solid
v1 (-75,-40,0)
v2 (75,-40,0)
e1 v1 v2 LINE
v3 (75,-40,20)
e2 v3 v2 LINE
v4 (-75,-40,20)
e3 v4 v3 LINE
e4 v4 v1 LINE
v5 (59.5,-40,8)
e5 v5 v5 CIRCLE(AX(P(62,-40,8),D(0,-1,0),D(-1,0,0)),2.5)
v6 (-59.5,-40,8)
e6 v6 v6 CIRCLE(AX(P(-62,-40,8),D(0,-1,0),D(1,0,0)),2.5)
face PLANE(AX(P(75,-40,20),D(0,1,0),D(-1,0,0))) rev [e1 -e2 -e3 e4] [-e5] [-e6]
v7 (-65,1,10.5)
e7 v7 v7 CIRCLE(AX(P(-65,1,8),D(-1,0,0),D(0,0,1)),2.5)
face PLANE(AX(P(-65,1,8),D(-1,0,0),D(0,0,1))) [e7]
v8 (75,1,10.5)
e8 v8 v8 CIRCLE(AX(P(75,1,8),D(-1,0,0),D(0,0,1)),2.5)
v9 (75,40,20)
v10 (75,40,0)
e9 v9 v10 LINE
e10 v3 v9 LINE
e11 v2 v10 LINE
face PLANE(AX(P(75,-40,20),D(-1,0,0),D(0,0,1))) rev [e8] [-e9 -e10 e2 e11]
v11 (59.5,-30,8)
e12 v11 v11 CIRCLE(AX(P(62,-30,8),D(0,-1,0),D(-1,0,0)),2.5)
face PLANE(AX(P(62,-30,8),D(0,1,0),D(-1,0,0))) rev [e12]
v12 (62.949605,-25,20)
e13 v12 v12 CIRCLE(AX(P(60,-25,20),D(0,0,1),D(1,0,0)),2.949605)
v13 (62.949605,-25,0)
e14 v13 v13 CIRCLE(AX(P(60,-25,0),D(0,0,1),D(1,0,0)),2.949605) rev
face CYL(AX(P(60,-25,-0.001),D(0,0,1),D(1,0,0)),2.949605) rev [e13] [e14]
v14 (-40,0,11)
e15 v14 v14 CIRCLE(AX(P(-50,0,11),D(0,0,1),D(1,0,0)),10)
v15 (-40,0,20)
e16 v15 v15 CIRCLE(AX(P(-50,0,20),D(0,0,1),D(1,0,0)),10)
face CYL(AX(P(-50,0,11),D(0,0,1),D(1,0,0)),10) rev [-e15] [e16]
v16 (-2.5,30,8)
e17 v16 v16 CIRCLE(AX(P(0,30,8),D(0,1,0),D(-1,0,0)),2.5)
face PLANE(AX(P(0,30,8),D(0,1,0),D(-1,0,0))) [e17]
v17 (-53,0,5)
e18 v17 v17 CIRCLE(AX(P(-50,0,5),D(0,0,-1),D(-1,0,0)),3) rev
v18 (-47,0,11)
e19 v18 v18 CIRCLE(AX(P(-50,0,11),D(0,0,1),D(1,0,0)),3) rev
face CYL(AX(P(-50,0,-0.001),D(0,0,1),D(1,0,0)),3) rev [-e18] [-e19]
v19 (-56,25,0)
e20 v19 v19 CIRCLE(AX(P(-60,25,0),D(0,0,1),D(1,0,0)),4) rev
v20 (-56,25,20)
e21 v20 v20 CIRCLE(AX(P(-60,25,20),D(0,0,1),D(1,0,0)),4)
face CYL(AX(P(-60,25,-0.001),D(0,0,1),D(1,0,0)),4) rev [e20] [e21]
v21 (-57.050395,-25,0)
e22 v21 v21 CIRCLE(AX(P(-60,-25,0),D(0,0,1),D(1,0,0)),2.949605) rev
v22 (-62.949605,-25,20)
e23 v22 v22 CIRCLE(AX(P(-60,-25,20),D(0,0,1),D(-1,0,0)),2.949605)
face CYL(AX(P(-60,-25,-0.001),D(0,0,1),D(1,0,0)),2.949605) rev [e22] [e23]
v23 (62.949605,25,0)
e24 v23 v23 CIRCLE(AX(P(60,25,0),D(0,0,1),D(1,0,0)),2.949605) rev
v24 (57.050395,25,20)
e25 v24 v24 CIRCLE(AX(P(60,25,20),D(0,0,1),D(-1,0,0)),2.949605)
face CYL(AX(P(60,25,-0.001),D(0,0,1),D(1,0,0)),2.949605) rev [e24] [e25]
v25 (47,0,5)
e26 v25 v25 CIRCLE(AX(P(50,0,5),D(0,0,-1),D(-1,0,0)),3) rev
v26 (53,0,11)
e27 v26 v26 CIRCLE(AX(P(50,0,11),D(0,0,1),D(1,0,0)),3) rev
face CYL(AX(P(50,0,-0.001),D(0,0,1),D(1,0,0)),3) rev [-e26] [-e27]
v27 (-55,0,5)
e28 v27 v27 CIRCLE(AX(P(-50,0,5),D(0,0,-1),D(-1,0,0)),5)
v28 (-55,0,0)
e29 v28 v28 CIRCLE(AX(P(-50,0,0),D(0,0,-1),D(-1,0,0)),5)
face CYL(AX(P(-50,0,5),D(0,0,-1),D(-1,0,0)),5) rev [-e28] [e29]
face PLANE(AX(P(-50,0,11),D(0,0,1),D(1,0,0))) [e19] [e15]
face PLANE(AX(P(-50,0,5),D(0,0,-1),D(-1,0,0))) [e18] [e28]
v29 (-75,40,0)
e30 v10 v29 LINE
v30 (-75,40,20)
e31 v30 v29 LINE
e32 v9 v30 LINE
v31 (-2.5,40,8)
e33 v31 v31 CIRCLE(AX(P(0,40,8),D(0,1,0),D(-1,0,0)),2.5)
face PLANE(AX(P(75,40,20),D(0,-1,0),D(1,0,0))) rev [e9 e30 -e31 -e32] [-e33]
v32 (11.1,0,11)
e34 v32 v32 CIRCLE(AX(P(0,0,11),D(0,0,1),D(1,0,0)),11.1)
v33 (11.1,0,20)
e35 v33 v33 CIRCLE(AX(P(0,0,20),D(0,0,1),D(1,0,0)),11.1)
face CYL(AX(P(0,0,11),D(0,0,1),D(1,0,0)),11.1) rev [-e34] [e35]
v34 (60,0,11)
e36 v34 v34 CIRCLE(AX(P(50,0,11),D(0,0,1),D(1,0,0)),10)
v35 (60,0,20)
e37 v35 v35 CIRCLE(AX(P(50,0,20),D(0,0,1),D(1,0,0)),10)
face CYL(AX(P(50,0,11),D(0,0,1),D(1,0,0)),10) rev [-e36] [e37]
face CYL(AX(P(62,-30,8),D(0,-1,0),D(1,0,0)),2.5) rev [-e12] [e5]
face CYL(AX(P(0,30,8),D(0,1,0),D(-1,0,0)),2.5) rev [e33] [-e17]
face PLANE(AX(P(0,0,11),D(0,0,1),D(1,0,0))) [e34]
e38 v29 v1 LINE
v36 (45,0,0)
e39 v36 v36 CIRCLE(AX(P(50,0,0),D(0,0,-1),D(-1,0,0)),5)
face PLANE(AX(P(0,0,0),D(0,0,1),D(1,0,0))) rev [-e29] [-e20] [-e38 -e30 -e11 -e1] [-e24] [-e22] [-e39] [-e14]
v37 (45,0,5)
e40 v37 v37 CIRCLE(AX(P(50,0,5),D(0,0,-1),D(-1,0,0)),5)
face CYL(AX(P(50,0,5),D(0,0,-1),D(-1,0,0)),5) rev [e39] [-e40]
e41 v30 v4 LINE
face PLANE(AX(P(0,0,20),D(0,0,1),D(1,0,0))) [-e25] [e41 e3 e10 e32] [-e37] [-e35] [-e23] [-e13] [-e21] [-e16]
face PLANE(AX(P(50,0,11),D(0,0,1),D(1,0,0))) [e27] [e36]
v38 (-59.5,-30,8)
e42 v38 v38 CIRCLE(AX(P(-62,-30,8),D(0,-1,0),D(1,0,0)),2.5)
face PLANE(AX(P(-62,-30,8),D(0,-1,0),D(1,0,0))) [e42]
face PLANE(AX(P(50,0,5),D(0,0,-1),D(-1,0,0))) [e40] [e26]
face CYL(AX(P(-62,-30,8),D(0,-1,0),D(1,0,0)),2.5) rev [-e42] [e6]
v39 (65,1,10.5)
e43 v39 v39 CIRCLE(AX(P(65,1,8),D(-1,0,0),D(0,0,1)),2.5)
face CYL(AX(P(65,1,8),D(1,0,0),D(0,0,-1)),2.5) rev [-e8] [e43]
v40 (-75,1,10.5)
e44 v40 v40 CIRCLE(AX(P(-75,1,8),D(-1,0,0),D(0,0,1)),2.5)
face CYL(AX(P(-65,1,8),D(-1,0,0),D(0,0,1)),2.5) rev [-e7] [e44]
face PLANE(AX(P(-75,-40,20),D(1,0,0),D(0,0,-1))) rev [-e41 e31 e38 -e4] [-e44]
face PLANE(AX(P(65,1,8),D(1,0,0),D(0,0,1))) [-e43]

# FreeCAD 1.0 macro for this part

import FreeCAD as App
import Part
import Sketcher

V = App.Vector
Q = App.Units.Quantity


def add_polygon(sketch, points):
    """Adds a closed chain of lines whose ends are joined by coincident constraints."""
    first, n = sketch.GeometryCount, len(points)
    for a, b in zip(points, points[1:] + points[:1]):
        sketch.addGeometry(Part.LineSegment(App.Vector(*a, 0), App.Vector(*b, 0)), False)
    for i in range(n):
        sketch.addConstraint(Sketcher.Constraint("Coincident", first + i, 2, first + (i + 1) % n, 1))

doc = App.newDocument("Part")
body = doc.addObject("PartDesign::Body", "Body")

# Sketch on XY plane
sketch1 = body.newObject("Sketcher::SketchObject", "Sketch")
sketch1.AttachmentSupport = (doc.getObject("XY_Plane"), [""])
sketch1.MapMode = "FlatFace"
add_polygon(sketch1, [(-75, 40), (-75, -40), (75, -40), (75, 40)])  # lines 0-3
sketch1.addConstraint([
    Sketcher.Constraint("Vertical", 0),
    Sketcher.Constraint("Horizontal", 1),
    Sketcher.Constraint("Vertical", 2),
    Sketcher.Constraint("Horizontal", 3),
    Sketcher.Constraint("Symmetric", 0, 2, 2, 2, -1, 1),
    Sketcher.Constraint("DistanceX", 1, 1, 1, 2, Q("150 mm")),
    Sketcher.Constraint("DistanceY", 0, 2, 0, 1, Q("80 mm")),
])
pad1 = body.newObject("PartDesign::Pad", "Pad")
pad1.Profile = sketch1
pad1.Length = 20

# Sketch on XY plane
sketch2 = body.newObject("Sketcher::SketchObject", "Sketch001")
sketch2.AttachmentSupport = (doc.getObject("XY_Plane"), [""])
sketch2.MapMode = "FlatFace"
sketch2.AttachmentOffset = App.Placement(V(0, 0, 20), App.Rotation())
sketch2.addGeometry(Part.Circle(V(-50, 0, 0), V(0, 0, 1), 3), False)
sketch2.addConstraint([
    Sketcher.Constraint("PointOnObject", 0, 3, -1),
    Sketcher.Constraint("Diameter", 0, Q("6 mm")),
    Sketcher.Constraint("DistanceX", 0, 3, -1, 1, Q("50 mm")),
])
pocket1 = body.newObject("PartDesign::Pocket", "Pocket")
pocket1.Profile = sketch2
pocket1.Type = "UpToFirst"

# Sketch on XY plane
sketch3 = body.newObject("Sketcher::SketchObject", "Sketch002")
sketch3.AttachmentSupport = (doc.getObject("XY_Plane"), [""])
sketch3.MapMode = "FlatFace"
sketch3.AttachmentOffset = App.Placement(V(0, 0, 20), App.Rotation())
sketch3.addGeometry(Part.Circle(V(50, 0, 0), V(0, 0, 1), 3), False)
sketch3.addConstraint([
    Sketcher.Constraint("PointOnObject", 0, 3, -1),
    Sketcher.Constraint("Diameter", 0, Q("6 mm")),
    Sketcher.Constraint("DistanceX", -1, 1, 0, 3, Q("50 mm")),
])
pocket2 = body.newObject("PartDesign::Pocket", "Pocket001")
pocket2.Profile = sketch3
pocket2.Type = "UpToFirst"

# Sketch on XY plane
sketch4 = body.newObject("Sketcher::SketchObject", "Sketch003")
sketch4.AttachmentSupport = (doc.getObject("XY_Plane"), [""])
sketch4.MapMode = "FlatFace"
sketch4.AttachmentOffset = App.Placement(V(0, 0, 20), App.Rotation())
sketch4.addGeometry([
    Part.Circle(V(0, 0, 0), V(0, 0, 1), 11.1),
    Part.Circle(V(-50, 0, 0), V(0, 0, 1), 10),
    Part.Circle(V(50, 0, 0), V(0, 0, 1), 10),
], False)
sketch4.addConstraint([
    Sketcher.Constraint("Coincident", 0, 3, -1, 1),
    Sketcher.Constraint("Equal", 1, 2),
    Sketcher.Constraint("Symmetric", 1, 3, 2, 3, -1, 1),
    Sketcher.Constraint("PointOnObject", 1, 3, -1),
    Sketcher.Constraint("Diameter", 1, Q("20 mm")),
    Sketcher.Constraint("Diameter", 0, Q("22.2 mm")),
    Sketcher.Constraint("DistanceX", 1, 3, -1, 1, Q("50 mm")),
])
pocket3 = body.newObject("PartDesign::Pocket", "Pocket002")
pocket3.Profile = sketch4
pocket3.Length = 9

# Sketch on XY plane
sketch5 = body.newObject("Sketcher::SketchObject", "Sketch004")
sketch5.AttachmentSupport = (doc.getObject("XY_Plane"), [""])
sketch5.MapMode = "FlatFace"
sketch5.AttachmentOffset = App.Placement(V(0, 0, 20), App.Rotation())
sketch5.addGeometry(Part.Circle(V(-60, 25, 0), V(0, 0, 1), 4), False)
sketch5.addConstraint([
    Sketcher.Constraint("Diameter", 0, Q("8 mm")),
    Sketcher.Constraint("DistanceX", 0, 3, -1, 1, Q("60 mm")),
    Sketcher.Constraint("DistanceY", -1, 1, 0, 3, Q("25 mm")),
])
pocket4 = body.newObject("PartDesign::Pocket", "Pocket003")
pocket4.Profile = sketch5
pocket4.Type = "UpToFirst"

# Sketch on XY plane
sketch6 = body.newObject("Sketcher::SketchObject", "Sketch005")
sketch6.AttachmentSupport = (doc.getObject("XY_Plane"), [""])
sketch6.MapMode = "FlatFace"
sketch6.AttachmentOffset = App.Placement(V(0, 0, 20), App.Rotation())
sketch6.addGeometry(Part.Circle(V(60, 25, 0), V(0, 0, 1), 2.949605), False)
sketch6.addConstraint([
    Sketcher.Constraint("DistanceX", -1, 1, 0, 3, Q("60 mm")),
    Sketcher.Constraint("DistanceY", -1, 1, 0, 3, Q("25 mm")),
    Sketcher.Constraint("Diameter", 0, Q("5.89921 mm")),
])
pocket5 = body.newObject("PartDesign::Pocket", "Pocket004")
pocket5.Profile = sketch6
pocket5.Type = "UpToFirst"

# Sketch on XY plane
sketch7 = body.newObject("Sketcher::SketchObject", "Sketch006")
sketch7.AttachmentSupport = (doc.getObject("XY_Plane"), [""])
sketch7.MapMode = "FlatFace"
sketch7.AttachmentOffset = App.Placement(V(0, 0, 20), App.Rotation())
sketch7.addGeometry(Part.Circle(V(60, -25, 0), V(0, 0, 1), 2.949605), False)
sketch7.addConstraint([
    Sketcher.Constraint("DistanceX", -1, 1, 0, 3, Q("60 mm")),
    Sketcher.Constraint("DistanceY", 0, 3, -1, 1, Q("25 mm")),
    Sketcher.Constraint("Diameter", 0, Q("5.89921 mm")),
])
pocket6 = body.newObject("PartDesign::Pocket", "Pocket005")
pocket6.Profile = sketch7
pocket6.Type = "UpToFirst"

# Sketch on XY plane
sketch8 = body.newObject("Sketcher::SketchObject", "Sketch007")
sketch8.AttachmentSupport = (doc.getObject("XY_Plane"), [""])
sketch8.MapMode = "FlatFace"
sketch8.AttachmentOffset = App.Placement(V(0, 0, 20), App.Rotation())
sketch8.addGeometry(Part.Circle(V(-60, -25, 0), V(0, 0, 1), 2.949605), False)
sketch8.addConstraint([
    Sketcher.Constraint("DistanceX", 0, 3, -1, 1, Q("60 mm")),
    Sketcher.Constraint("DistanceY", 0, 3, -1, 1, Q("25 mm")),
    Sketcher.Constraint("Diameter", 0, Q("5.89921 mm")),
])
pocket7 = body.newObject("PartDesign::Pocket", "Pocket006")
pocket7.Profile = sketch8
pocket7.Type = "UpToFirst"

# Sketch on XY plane
sketch9 = body.newObject("Sketcher::SketchObject", "Sketch008")
sketch9.AttachmentSupport = (doc.getObject("XY_Plane"), [""])
sketch9.MapMode = "FlatFace"
sketch9.addGeometry([
    Part.Circle(V(50, 0, 0), V(0, 0, 1), 5),
    Part.Circle(V(-50, 0, 0), V(0, 0, 1), 5),
], False)
sketch9.addConstraint([
    Sketcher.Constraint("Equal", 0, 1),
    Sketcher.Constraint("Symmetric", 0, 3, 1, 3, -1, 1),
    Sketcher.Constraint("PointOnObject", 0, 3, -1),
    Sketcher.Constraint("Diameter", 0, Q("10 mm")),
    Sketcher.Constraint("DistanceX", -1, 1, 0, 3, Q("50 mm")),
])
pocket8 = body.newObject("PartDesign::Pocket", "Pocket007")
pocket8.Profile = sketch9
pocket8.Length = 5
pocket8.Reversed = True

# Sketch on YZ plane
sketch10 = body.newObject("Sketcher::SketchObject", "Sketch009")
sketch10.AttachmentSupport = (doc.getObject("YZ_Plane"), [""])
sketch10.MapMode = "FlatFace"
sketch10.AttachmentOffset = App.Placement(V(0, 0, -75), App.Rotation())
sketch10.addGeometry(Part.Circle(V(1, 8, 0), V(0, 0, 1), 2.5), False)
sketch10.addConstraint([
    Sketcher.Constraint("Diameter", 0, Q("5 mm")),
    Sketcher.Constraint("DistanceX", -1, 1, 0, 3, Q("1 mm")),
    Sketcher.Constraint("DistanceY", -1, 1, 0, 3, Q("8 mm")),
])
pocket9 = body.newObject("PartDesign::Pocket", "Pocket008")
pocket9.Profile = sketch10
pocket9.Length = 10
pocket9.Reversed = True
doc.recompute()

mirrored = body.newObject("PartDesign::Mirrored", "Mirrored")
mirrored.Originals = [pocket9]
mirrored.MirrorPlane = (doc.getObject("YZ_Plane"), [""])
body.Tip = mirrored

# Sketch on XZ plane
sketch11 = body.newObject("Sketcher::SketchObject", "Sketch010")
sketch11.AttachmentSupport = (doc.getObject("XZ_Plane"), [""])
sketch11.MapMode = "FlatFace"
sketch11.AttachmentOffset = App.Placement(V(0, 0, 40), App.Rotation())
sketch11.addGeometry([
    Part.Circle(V(-62, 8, 0), V(0, 0, 1), 2.5),
    Part.Circle(V(62, 8, 0), V(0, 0, 1), 2.5),
], False)
sketch11.addConstraint([
    Sketcher.Constraint("Equal", 0, 1),
    Sketcher.Constraint("Symmetric", 0, 3, 1, 3, -2),
    Sketcher.Constraint("Diameter", 0, Q("5 mm")),
    Sketcher.Constraint("DistanceX", 0, 3, -1, 1, Q("62 mm")),
    Sketcher.Constraint("DistanceY", -1, 1, 0, 3, Q("8 mm")),
])
pocket10 = body.newObject("PartDesign::Pocket", "Pocket009")
pocket10.Profile = sketch11
pocket10.Length = 10

# Sketch on XZ plane
sketch12 = body.newObject("Sketcher::SketchObject", "Sketch011")
sketch12.AttachmentSupport = (doc.getObject("XZ_Plane"), [""])
sketch12.MapMode = "FlatFace"
sketch12.AttachmentOffset = App.Placement(V(0, 0, -40), App.Rotation())
sketch12.addGeometry(Part.Circle(V(0, 8, 0), V(0, 0, 1), 2.5), False)
sketch12.addConstraint([
    Sketcher.Constraint("PointOnObject", 0, 3, -2),
    Sketcher.Constraint("Diameter", 0, Q("5 mm")),
    Sketcher.Constraint("DistanceY", -1, 1, 0, 3, Q("8 mm")),
])
pocket11 = body.newObject("PartDesign::Pocket", "Pocket010")
pocket11.Profile = sketch12
pocket11.Length = 10
pocket11.Reversed = True

doc.recompute()
